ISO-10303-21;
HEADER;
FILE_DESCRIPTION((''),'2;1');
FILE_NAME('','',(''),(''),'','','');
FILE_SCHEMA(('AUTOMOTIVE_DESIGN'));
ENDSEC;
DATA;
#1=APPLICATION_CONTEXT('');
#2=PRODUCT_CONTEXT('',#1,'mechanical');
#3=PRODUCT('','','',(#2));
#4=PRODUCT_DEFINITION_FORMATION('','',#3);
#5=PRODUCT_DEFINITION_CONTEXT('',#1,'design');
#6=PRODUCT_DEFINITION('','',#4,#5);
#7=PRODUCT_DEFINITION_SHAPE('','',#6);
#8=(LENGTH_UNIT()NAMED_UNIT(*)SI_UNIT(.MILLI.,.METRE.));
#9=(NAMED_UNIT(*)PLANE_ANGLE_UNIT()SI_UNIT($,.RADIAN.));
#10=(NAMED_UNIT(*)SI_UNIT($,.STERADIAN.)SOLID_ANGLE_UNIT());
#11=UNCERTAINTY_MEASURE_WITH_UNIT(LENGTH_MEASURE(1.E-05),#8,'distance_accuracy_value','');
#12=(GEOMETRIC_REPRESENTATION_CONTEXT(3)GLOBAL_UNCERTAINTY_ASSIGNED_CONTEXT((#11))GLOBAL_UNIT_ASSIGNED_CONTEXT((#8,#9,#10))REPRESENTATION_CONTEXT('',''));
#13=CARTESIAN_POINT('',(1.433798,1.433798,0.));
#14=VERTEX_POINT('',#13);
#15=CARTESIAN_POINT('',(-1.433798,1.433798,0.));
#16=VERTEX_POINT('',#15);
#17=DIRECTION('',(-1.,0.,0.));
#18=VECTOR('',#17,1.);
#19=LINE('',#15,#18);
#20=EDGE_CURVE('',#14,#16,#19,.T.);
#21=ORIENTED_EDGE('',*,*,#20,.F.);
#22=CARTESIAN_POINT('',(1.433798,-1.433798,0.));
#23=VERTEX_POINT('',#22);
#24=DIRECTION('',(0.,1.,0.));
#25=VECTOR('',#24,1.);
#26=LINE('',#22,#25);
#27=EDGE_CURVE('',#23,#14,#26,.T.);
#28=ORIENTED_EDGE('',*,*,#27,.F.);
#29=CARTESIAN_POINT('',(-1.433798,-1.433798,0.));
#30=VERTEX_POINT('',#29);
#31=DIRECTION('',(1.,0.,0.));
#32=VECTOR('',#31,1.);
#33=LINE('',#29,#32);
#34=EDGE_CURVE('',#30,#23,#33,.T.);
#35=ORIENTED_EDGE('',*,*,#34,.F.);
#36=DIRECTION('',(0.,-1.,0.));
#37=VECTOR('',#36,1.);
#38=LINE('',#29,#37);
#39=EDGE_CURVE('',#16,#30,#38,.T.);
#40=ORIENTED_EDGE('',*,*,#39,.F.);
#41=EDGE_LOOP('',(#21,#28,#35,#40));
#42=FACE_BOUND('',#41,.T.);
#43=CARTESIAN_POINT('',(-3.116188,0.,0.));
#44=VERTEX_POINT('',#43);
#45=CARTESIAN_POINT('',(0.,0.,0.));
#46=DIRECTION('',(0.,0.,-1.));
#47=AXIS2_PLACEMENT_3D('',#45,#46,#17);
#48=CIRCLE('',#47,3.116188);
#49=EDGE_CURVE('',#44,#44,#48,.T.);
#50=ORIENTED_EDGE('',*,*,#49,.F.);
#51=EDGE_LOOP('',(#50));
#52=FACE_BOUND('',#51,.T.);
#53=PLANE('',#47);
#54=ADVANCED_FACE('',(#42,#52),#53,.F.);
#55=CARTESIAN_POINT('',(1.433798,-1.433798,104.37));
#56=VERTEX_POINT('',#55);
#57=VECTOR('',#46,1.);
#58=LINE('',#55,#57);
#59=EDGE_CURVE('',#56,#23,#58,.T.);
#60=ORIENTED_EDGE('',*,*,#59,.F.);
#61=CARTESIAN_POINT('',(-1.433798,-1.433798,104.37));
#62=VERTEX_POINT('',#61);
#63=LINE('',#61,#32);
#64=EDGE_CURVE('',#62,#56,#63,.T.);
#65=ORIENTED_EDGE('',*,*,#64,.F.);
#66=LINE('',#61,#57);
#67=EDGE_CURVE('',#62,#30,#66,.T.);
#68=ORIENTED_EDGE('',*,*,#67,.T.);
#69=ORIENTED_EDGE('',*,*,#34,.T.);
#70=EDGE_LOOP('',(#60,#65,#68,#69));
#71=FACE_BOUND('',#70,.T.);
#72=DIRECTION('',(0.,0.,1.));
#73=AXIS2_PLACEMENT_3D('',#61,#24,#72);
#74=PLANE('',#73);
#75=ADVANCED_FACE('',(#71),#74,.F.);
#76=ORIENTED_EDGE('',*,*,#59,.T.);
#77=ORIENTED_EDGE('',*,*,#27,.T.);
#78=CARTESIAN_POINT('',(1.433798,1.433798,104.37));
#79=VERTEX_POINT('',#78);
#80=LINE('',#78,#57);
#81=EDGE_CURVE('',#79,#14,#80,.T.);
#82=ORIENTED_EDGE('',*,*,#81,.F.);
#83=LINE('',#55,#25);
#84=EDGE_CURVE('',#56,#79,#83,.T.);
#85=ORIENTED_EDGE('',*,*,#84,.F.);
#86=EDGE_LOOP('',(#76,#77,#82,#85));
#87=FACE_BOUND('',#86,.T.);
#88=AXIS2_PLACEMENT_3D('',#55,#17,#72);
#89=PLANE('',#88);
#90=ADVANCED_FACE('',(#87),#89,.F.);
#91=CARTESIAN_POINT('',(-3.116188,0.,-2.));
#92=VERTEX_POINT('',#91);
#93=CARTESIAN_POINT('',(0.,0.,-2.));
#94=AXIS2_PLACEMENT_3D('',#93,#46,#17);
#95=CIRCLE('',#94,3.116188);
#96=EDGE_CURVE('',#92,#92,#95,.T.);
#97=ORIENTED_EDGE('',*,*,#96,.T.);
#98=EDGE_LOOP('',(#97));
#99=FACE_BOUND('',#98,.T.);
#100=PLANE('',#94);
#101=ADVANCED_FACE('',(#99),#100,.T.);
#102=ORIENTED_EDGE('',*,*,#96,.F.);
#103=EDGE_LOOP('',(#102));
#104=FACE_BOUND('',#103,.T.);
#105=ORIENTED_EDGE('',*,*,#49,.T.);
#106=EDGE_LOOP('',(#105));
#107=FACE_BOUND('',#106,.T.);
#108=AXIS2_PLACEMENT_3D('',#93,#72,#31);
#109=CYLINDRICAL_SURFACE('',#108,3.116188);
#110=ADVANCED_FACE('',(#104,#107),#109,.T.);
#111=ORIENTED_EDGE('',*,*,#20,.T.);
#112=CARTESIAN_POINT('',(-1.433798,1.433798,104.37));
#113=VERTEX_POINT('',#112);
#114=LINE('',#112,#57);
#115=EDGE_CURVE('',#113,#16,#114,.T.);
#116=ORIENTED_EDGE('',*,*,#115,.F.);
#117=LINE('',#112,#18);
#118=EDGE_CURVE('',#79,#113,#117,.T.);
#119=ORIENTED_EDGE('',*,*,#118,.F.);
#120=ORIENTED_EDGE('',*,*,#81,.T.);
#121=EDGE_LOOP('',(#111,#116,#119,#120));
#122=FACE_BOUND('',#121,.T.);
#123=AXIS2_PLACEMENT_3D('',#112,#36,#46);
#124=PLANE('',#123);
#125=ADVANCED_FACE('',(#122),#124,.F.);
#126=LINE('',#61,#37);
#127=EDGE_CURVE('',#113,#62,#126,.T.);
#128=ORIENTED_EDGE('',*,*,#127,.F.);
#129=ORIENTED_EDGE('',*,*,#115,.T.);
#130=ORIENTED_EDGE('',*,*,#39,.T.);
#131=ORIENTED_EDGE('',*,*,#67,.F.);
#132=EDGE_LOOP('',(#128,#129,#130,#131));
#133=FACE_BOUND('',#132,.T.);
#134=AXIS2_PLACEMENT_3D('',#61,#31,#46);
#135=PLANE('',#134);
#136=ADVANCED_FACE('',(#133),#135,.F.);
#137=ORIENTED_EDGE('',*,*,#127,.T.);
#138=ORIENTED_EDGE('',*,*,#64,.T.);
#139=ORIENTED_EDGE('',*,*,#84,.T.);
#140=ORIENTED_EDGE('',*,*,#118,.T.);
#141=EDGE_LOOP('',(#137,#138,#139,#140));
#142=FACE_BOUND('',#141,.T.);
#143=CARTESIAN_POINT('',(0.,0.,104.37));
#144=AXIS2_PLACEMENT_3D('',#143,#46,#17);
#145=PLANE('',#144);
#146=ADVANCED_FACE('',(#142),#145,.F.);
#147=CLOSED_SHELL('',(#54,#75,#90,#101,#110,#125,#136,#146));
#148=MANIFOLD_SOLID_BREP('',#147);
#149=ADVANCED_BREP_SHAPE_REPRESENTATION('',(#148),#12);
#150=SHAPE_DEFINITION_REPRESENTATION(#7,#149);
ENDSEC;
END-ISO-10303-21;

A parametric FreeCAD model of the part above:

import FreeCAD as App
import Part
import Sketcher
Q = App.Units.Quantity

doc = App.newDocument("Part")
body = doc.addObject("PartDesign::Body", "Body")

sketch1 = body.newObject("Sketcher::SketchObject", "Sketch")
sketch1.AttachmentSupport = (doc.getObject("XY_Plane"), [""])
sketch1.MapMode = "FlatFace"
sketch1.addGeometry([
    Part.LineSegment(App.Vector(-1.4, 1.4, 0), App.Vector(-1.4, -1.4, 0)),
    Part.LineSegment(App.Vector(-1.4, -1.4, 0), App.Vector(1.4, -1.4, 0)),
    Part.LineSegment(App.Vector(1.4, -1.4, 0), App.Vector(1.4, 1.4, 0)),
    Part.LineSegment(App.Vector(1.4, 1.4, 0), App.Vector(-1.4, 1.4, 0)),
], False)
sketch1.addConstraint([
    Sketcher.Constraint("Coincident", 0, 2, 1, 1),
    Sketcher.Constraint("Coincident", 1, 2, 2, 1),
    Sketcher.Constraint("Coincident", 2, 2, 3, 1),
    Sketcher.Constraint("Coincident", 3, 2, 0, 1),
    Sketcher.Constraint("Vertical", 0),
    Sketcher.Constraint("Horizontal", 1),
    Sketcher.Constraint("Vertical", 2),
    Sketcher.Constraint("Horizontal", 3),
    Sketcher.Constraint("Symmetric", 0, 2, 2, 2, -1, 1),
    Sketcher.Constraint("Equal", 3, 0),
    Sketcher.Constraint("DistanceX", 0, 2, -1, 1, Q("1.433798 mm")),
])
pad1 = body.newObject("PartDesign::Pad", "Pad")
pad1.Profile = sketch1
pad1.Length = 104.37

sketch2 = body.newObject("Sketcher::SketchObject", "Sketch001")
sketch2.AttachmentSupport = (doc.getObject("XY_Plane"), [""])
sketch2.MapMode = "FlatFace"
sketch2.addGeometry(Part.Circle(App.Vector(0, 0, 0), App.Vector(0, 0, 1), 3.1), False)
sketch2.addConstraint([
    Sketcher.Constraint("Coincident", 0, 3, -1, 1),
    Sketcher.Constraint("Diameter", 0, Q("6.232375 mm")),
])
pad2 = body.newObject("PartDesign::Pad", "Pad001")
pad2.Profile = sketch2
pad2.Length = 2
pad2.Reversed = True

doc.recompute()
